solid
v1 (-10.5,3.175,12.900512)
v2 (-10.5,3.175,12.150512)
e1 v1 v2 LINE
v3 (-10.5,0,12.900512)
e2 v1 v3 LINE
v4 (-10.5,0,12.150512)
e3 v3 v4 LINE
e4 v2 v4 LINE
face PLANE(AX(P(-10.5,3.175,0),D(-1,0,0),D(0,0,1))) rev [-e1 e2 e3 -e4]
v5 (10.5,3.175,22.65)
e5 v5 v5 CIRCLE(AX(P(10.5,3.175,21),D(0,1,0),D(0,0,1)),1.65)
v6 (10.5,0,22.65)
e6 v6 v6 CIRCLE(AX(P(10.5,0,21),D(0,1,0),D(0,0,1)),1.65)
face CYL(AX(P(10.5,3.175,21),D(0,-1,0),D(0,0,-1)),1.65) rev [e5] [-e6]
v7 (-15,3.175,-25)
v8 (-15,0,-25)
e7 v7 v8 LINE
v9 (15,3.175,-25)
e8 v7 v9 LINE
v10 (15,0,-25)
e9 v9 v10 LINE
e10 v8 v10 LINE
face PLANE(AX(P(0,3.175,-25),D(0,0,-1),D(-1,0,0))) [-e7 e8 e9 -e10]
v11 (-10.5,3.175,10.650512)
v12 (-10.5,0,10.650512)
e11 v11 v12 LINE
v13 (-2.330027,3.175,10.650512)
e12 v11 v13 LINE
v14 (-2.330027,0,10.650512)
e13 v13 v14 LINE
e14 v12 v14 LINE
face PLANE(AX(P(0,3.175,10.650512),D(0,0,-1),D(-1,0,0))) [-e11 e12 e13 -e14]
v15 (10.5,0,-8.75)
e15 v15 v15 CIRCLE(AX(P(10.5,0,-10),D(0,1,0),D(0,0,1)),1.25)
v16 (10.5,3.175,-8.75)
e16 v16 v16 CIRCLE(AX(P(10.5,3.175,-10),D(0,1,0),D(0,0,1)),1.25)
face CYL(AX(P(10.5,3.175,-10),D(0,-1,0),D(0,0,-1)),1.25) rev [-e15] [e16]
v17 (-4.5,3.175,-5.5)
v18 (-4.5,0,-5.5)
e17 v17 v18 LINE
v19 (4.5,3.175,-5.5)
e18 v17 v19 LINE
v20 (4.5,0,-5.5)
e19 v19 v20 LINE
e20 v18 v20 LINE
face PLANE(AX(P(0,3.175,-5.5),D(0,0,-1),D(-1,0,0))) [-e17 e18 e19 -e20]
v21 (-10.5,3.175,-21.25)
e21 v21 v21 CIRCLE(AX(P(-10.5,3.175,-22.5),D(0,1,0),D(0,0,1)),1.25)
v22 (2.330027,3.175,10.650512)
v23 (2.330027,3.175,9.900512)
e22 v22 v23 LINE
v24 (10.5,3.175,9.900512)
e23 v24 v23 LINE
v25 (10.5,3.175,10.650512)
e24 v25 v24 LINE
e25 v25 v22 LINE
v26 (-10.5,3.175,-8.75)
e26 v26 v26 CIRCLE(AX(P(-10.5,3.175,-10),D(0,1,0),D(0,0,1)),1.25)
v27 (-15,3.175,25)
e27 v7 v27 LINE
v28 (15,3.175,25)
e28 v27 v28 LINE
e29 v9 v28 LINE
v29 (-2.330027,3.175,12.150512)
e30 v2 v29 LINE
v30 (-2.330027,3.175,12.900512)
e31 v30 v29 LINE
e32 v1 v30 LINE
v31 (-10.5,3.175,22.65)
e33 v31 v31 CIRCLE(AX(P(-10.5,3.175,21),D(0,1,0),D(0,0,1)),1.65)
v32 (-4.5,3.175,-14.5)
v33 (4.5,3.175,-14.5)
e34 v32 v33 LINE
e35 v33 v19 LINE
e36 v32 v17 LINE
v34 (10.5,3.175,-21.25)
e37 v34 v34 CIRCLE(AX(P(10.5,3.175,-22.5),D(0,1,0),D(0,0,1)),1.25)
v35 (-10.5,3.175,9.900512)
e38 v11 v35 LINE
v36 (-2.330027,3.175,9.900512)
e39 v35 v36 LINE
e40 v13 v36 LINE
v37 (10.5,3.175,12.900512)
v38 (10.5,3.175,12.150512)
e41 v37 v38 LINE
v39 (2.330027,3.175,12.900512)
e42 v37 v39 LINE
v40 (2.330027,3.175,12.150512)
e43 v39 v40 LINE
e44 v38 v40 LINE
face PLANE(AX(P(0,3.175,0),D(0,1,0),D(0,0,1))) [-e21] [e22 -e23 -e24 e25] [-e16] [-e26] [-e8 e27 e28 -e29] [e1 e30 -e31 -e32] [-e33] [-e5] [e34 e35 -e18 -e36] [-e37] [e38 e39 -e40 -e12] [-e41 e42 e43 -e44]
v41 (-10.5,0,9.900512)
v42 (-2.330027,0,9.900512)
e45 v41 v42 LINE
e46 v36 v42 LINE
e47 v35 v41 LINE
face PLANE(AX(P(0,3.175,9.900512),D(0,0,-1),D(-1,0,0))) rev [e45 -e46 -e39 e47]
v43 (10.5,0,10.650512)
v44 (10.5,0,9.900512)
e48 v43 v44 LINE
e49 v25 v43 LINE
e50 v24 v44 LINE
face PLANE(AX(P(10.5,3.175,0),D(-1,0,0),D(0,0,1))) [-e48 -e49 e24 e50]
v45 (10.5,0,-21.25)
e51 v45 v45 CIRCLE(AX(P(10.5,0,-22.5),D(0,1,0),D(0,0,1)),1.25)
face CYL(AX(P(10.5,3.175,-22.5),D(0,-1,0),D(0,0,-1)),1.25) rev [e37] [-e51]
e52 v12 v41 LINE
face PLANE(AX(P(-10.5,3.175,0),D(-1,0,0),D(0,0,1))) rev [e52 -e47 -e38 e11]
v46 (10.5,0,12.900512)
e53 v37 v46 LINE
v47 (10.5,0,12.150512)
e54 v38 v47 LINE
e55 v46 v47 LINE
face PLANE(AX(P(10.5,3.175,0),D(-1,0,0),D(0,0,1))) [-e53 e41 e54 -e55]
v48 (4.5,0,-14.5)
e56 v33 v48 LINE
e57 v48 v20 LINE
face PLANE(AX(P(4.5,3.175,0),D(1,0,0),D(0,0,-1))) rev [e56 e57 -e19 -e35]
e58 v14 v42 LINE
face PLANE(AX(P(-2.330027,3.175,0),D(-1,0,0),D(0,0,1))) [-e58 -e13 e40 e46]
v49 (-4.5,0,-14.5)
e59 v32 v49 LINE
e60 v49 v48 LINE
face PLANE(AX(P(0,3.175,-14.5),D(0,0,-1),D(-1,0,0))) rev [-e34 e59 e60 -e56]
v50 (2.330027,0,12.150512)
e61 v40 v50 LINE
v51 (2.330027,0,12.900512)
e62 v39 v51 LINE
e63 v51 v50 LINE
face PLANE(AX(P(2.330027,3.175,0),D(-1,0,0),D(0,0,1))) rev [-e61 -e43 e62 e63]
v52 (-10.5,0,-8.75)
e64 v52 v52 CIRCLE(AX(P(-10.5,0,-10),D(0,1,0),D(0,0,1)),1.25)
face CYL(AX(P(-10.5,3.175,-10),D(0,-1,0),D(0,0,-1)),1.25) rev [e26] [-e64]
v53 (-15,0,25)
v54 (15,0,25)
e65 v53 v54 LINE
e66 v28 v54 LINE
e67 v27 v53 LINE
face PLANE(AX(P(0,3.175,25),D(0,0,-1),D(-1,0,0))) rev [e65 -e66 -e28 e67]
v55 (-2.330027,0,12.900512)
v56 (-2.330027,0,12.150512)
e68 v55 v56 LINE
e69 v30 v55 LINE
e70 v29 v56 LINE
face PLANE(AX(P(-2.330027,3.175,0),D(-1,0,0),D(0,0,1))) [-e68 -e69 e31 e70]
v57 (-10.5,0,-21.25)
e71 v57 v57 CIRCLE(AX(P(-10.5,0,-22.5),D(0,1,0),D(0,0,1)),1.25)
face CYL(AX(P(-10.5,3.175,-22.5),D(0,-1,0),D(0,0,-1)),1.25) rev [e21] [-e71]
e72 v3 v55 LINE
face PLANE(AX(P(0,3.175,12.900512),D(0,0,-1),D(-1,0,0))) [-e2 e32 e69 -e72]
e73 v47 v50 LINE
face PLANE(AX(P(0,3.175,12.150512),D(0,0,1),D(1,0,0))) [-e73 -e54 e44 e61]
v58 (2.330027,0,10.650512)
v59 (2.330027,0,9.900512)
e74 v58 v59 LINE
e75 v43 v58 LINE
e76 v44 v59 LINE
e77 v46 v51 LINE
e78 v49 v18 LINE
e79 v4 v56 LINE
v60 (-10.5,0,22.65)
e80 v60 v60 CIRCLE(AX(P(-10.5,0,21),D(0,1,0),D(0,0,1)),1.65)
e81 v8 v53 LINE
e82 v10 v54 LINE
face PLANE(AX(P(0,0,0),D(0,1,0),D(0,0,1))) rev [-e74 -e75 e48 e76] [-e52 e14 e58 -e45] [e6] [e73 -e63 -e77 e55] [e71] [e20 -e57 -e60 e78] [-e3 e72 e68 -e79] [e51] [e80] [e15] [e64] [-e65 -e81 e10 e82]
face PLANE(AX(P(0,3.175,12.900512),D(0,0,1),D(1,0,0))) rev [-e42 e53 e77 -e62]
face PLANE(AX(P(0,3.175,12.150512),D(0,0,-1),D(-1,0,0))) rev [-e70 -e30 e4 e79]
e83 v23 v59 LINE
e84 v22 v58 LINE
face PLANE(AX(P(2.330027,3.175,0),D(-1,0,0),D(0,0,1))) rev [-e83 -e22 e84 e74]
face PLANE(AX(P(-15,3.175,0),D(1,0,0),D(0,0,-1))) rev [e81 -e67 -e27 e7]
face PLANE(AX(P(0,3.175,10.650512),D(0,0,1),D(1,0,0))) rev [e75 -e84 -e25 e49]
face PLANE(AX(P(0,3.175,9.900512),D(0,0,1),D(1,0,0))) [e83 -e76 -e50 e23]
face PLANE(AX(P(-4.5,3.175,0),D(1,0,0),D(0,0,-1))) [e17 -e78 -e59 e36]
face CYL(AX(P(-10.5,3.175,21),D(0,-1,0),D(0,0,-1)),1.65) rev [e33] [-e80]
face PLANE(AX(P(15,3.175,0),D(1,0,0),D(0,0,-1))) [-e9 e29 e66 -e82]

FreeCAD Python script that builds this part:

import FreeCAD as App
import Part
import Sketcher


def add_polygon(sketch, points):
    """Adds a closed chain of lines whose ends are joined by coincident constraints."""
    first, n = sketch.GeometryCount, len(points)
    for a, b in zip(points, points[1:] + points[:1]):
        sketch.addGeometry(Part.LineSegment(App.Vector(*a, 0), App.Vector(*b, 0)), False)
    for i in range(n):
        sketch.addConstraint(Sketcher.Constraint("Coincident", first + i, 2, first + (i + 1) % n, 1))

doc = App.newDocument("Part")
body = doc.addObject("PartDesign::Body", "Body")

# Sketch on XZ plane
sketch1 = body.newObject("Sketcher::SketchObject", "Sketch")
sketch1.AttachmentSupport = (doc.getObject("XZ_Plane"), [""])
sketch1.MapMode = "FlatFace"
add_polygon(sketch1, [(-15, -25), (-15, 25), (15, 25), (15, -25)])  # lines 0-3
sketch1.addGeometry(Part.Circle(App.Vector(-10.5, 21, 0), App.Vector(0, 0, 1), 1.6), False)  # 4
add_polygon(sketch1, [(-2.3, 12.9), (-10.5, 12.9), (-10.5, 12.2), (-2.3, 12.2)])  # lines 5-8
add_polygon(sketch1, [(-2.3, 10.7), (-10.5, 10.7), (-10.5, 9.9), (-2.3, 9.9)])  # lines 9-12
sketch1.addGeometry(Part.Circle(App.Vector(10.5, 21, 0), App.Vector(0, 0, 1), 1.6), False)  # 13
add_polygon(sketch1, [(10.5, 12.9), (2.3, 12.9), (2.3, 12.2), (10.5, 12.2)])  # lines 14-17
add_polygon(sketch1, [(10.5, 10.7), (2.3, 10.7), (2.3, 9.9), (10.5, 9.9)])  # lines 18-21
sketch1.addGeometry(Part.Circle(App.Vector(-10.5, -10, 0), App.Vector(0, 0, 1), 1.2), False)  # 22
sketch1.addGeometry(Part.Circle(App.Vector(-10.5, -22.5, 0), App.Vector(0, 0, 1), 1.2), False)  # 23
add_polygon(sketch1, [(4.5, -5.5), (-4.5, -5.5), (-4.5, -14.5), (4.5, -14.5)])  # lines 24-27
sketch1.addGeometry(Part.Circle(App.Vector(10.5, -10, 0), App.Vector(0, 0, 1), 1.2), False)  # 28
sketch1.addGeometry(Part.Circle(App.Vector(10.5, -22.5, 0), App.Vector(0, 0, 1), 1.2), False)  # 29
sketch1.addConstraint([
    Sketcher.Constraint("Vertical", 0),
    Sketcher.Constraint("Horizontal", 1),
    Sketcher.Constraint("Vertical", 2),
    Sketcher.Constraint("Horizontal", 3),
    Sketcher.Constraint("Horizontal", 5),
    Sketcher.Constraint("Vertical", 6),
    Sketcher.Constraint("Horizontal", 7),
    Sketcher.Constraint("Vertical", 8),
    Sketcher.Constraint("Horizontal", 9),
    Sketcher.Constraint("Vertical", 10),
    Sketcher.Constraint("Horizontal", 11),
    Sketcher.Constraint("Vertical", 12),
    Sketcher.Constraint("Horizontal", 14),
    Sketcher.Constraint("Vertical", 15),
    Sketcher.Constraint("Horizontal", 16),
    Sketcher.Constraint("Vertical", 17),
    Sketcher.Constraint("Horizontal", 18),
    Sketcher.Constraint("Vertical", 19),
    Sketcher.Constraint("Horizontal", 20),
    Sketcher.Constraint("Vertical", 21),
    Sketcher.Constraint("Horizontal", 24),
    Sketcher.Constraint("Vertical", 25),
    Sketcher.Constraint("Horizontal", 26),
    Sketcher.Constraint("Vertical", 27),
    Sketcher.Constraint("Equal", 4, 13),
    Sketcher.Constraint("Equal", 22, 23),
    Sketcher.Constraint("Equal", 23, 28),
    Sketcher.Constraint("Equal", 28, 29),
    Sketcher.Constraint("Symmetric", 0, 2, 2, 2, -1, 1),
    Sketcher.Constraint("Symmetric", 4, 3, 13, 3, -2),
    Sketcher.Constraint("Symmetric", 22, 3, 28, 3, -2),
    Sketcher.Constraint("Symmetric", 23, 3, 29, 3, -2),
    Sketcher.Constraint("Symmetric", 8, 2, 14, 2, -2),
    Sketcher.Constraint("Symmetric", 6, 2, 16, 2, -2),
    Sketcher.Constraint("Symmetric", 12, 2, 18, 2, -2),
    Sketcher.Constraint("Symmetric", 10, 2, 20, 2, -2),
    Sketcher.Constraint("Vertical", 4, 3, 22, 3),
    Sketcher.Constraint("Vertical", 22, 3, 23, 3),
    Sketcher.Constraint("Vertical", 23, 3, 5, 2),
    Sketcher.Constraint("Vertical", 6, 2, 9, 2),
    Sketcher.Constraint("Vertical", 8, 2, 11, 2),
    Sketcher.Constraint("Equal", 8, 10),
    Sketcher.Constraint("Equal", 26, 25),
    Sketcher.Constraint("Diameter", 4, 3.3),
    Sketcher.Constraint("Diameter", 22, 2.5),
    Sketcher.Constraint("DistanceX", 1, 1, 1, 2, 30.0),
    Sketcher.Constraint("DistanceX", 24, 2, 24, 1, 9.0),
    Sketcher.Constraint("DistanceY", 0, 1, 0, 2, 50.0),
    Sketcher.Constraint("DistanceY", -1, 1, 4, 3, 21.0),
    Sketcher.Constraint("DistanceY", 22, 3, -1, 1, 10.0),
    Sketcher.Constraint("DistanceX", 4, 3, 13, 3, 21.0),
    Sketcher.Constraint("DistanceY", 10, 2, 5, 2, 3.0),
    Sketcher.Constraint("DistanceX", 22, 3, 24, 2, 6.0),
    Sketcher.Constraint("DistanceY", 23, 3, 25, 2, 8.0),
    Sketcher.Constraint("DistanceY", 6, 2, 6, 1, 0.75),
    Sketcher.Constraint("DistanceY", 23, 3, -1, 1, 22.5),
    Sketcher.Constraint("DistanceX", 5, 2, 5, 1, 8.169973),
    Sketcher.Constraint("DistanceY", -1, 1, 5, 2, 12.900512),
])
pad1 = body.newObject("PartDesign::Pad", "Pad")
pad1.Profile = sketch1
pad1.Length = 3.175
pad1.Reversed = True

doc.recompute()
